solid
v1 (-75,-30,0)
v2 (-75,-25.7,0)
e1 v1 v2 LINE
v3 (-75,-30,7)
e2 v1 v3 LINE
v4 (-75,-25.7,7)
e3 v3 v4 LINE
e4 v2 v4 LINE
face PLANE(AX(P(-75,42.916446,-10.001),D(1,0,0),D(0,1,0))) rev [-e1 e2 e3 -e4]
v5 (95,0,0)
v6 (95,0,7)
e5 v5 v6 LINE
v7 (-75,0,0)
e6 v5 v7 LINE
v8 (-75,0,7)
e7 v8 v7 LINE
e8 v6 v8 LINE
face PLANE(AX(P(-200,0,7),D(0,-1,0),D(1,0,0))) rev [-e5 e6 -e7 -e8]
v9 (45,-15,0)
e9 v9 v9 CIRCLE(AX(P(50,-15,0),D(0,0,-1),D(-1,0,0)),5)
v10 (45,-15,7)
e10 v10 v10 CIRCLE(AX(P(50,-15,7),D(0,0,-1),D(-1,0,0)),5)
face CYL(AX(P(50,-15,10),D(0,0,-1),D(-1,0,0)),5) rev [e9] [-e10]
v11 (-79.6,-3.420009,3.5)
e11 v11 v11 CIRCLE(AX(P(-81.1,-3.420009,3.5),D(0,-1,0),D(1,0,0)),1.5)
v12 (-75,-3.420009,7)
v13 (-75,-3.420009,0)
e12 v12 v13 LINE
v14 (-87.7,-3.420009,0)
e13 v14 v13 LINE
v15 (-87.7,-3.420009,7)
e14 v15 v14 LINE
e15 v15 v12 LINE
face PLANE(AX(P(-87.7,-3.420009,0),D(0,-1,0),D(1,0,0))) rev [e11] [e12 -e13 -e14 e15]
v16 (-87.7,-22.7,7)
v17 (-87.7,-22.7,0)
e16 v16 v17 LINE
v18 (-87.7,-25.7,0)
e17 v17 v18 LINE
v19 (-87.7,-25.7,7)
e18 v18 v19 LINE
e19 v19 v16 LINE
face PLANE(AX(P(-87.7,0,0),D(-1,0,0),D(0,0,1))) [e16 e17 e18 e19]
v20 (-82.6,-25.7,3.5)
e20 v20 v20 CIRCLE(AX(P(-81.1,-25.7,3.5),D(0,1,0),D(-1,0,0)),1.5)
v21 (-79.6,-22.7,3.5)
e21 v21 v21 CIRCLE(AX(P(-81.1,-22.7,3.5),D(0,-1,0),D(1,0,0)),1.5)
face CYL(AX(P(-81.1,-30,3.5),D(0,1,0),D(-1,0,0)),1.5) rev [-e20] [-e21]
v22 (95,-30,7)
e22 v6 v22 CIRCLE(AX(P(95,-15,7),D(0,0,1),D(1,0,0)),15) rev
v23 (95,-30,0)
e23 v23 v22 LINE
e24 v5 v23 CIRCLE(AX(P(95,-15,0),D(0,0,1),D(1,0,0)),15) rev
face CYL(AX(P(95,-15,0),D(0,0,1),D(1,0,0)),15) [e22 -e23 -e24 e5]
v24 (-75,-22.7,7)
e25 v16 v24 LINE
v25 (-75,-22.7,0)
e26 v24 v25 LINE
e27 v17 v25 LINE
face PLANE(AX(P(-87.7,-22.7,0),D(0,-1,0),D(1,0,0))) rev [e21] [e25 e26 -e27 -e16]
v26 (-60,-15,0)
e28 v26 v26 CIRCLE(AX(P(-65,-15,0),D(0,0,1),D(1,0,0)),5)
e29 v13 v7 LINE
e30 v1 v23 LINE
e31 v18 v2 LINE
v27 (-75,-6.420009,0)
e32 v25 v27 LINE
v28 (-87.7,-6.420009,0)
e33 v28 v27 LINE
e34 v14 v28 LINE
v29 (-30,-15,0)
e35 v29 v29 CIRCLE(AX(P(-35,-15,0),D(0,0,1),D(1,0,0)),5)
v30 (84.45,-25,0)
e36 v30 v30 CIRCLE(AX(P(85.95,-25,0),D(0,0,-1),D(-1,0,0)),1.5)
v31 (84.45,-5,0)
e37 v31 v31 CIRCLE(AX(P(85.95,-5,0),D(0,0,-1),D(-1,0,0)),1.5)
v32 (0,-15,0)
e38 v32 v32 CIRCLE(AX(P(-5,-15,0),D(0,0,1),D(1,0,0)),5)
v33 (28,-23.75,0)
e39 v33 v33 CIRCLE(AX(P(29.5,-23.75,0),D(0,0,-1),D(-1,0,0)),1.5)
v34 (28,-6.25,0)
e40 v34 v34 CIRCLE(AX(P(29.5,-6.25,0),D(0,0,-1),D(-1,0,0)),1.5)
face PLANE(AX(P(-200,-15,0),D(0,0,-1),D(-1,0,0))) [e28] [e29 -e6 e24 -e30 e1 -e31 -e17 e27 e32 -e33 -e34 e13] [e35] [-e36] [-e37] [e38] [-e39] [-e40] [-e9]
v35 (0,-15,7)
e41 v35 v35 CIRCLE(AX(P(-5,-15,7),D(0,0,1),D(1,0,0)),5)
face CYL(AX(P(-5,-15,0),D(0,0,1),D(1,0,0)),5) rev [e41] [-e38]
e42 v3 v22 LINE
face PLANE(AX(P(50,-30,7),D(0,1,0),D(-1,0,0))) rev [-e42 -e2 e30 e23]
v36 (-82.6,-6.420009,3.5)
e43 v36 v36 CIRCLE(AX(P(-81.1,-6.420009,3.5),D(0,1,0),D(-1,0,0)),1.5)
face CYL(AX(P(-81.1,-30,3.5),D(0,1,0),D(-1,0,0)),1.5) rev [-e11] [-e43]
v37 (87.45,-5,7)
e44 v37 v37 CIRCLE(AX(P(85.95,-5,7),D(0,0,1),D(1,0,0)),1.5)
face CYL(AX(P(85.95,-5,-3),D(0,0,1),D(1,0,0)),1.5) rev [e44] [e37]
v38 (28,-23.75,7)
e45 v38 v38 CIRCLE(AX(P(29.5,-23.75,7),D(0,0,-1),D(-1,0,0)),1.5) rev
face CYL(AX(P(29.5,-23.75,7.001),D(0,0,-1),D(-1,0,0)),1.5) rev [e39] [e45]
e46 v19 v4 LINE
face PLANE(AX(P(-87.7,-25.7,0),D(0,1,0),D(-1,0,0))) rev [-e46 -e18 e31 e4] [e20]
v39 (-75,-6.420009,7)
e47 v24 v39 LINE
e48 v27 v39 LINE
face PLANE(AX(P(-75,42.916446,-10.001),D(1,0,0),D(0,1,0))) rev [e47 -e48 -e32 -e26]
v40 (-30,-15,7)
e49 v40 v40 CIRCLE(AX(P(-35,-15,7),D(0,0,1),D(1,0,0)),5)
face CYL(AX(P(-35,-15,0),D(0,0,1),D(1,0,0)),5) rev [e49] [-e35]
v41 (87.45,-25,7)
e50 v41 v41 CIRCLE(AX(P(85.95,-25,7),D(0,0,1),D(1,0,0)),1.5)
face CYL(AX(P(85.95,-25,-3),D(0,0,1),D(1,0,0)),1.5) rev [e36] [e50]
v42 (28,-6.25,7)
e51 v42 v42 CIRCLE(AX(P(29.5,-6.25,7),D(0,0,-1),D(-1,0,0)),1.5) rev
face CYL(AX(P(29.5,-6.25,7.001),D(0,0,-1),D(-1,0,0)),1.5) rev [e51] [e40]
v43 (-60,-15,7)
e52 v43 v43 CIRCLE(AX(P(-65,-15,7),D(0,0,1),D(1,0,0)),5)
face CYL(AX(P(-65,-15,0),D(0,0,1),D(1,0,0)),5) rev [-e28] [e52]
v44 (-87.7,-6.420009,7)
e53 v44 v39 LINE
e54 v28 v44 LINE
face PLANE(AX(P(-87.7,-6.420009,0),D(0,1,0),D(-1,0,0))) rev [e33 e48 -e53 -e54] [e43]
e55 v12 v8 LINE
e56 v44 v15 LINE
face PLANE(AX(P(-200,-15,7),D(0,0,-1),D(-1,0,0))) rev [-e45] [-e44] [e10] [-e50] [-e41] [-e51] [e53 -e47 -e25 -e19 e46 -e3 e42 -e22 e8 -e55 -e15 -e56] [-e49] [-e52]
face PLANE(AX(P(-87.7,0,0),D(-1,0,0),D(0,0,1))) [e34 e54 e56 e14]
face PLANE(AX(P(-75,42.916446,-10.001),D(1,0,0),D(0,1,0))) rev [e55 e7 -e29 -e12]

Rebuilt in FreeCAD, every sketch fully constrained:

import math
import FreeCAD as App
import Part
import Sketcher
from FreeCAD import Vector
Q = App.Units.Quantity


def add_polygon(sketch, points):
    """Adds a closed chain of lines whose ends are joined by coincident constraints."""
    first, n = sketch.GeometryCount, len(points)
    for a, b in zip(points, points[1:] + points[:1]):
        sketch.addGeometry(Part.LineSegment(App.Vector(*a, 0), App.Vector(*b, 0)), False)
    for i in range(n):
        sketch.addConstraint(Sketcher.Constraint("Coincident", first + i, 2, first + (i + 1) % n, 1))

doc = App.newDocument("Part")
body = doc.addObject("PartDesign::Body", "Body")

# Sketch on XY plane
sketch1 = doc.addObject("Sketcher::SketchObject", "Sketch")
body.addObject(sketch1)
sketch1.AttachmentSupport = (doc.XY_Plane, [""])
sketch1.MapMode = "FlatFace"
sketch1.addGeometry([
    Part.LineSegment(Vector(50, 0, 0), Vector(-200, 0, 0)),
    Part.ArcOfCircle(Part.Circle(Vector(-200, -15, 0), Vector(0, 0, 1), 15), math.radians(90), math.radians(270)),
    Part.LineSegment(Vector(-200, -30, 0), Vector(50, -30, 0)),
    Part.ArcOfCircle(Part.Circle(Vector(50, -15, 0), Vector(0, 0, 1), 15), math.radians(-90), math.radians(90)),
], False)
sketch1.addConstraint([
    Sketcher.Constraint("Tangent", 0, 2, 1, 1),
    Sketcher.Constraint("Tangent", 1, 2, 2, 1),
    Sketcher.Constraint("Tangent", 2, 2, 3, 1),
    Sketcher.Constraint("Tangent", 3, 2, 0, 1),
    Sketcher.Constraint("Horizontal", 0),
    Sketcher.Constraint("Horizontal", 2),
    Sketcher.Constraint("PointOnObject", 0, 2, -1),
    Sketcher.Constraint("Radius", 1, Q("15 mm")),
    Sketcher.Constraint("DistanceX", 0, 2, 0, 1, Q("250 mm")),
    Sketcher.Constraint("DistanceX", 1, 3, -1, 1, Q("200 mm")),
])
pad1 = doc.addObject("PartDesign::Pad", "Pad")
body.addObject(pad1)
pad1.Profile = sketch1
pad1.Length = 7

# Sketch on XY plane
sketch2 = doc.addObject("Sketcher::SketchObject", "Sketch001")
body.addObject(sketch2)
sketch2.AttachmentSupport = (doc.XY_Plane, [""])
sketch2.MapMode = "FlatFace"
sketch2.AttachmentOffset = App.Placement(Vector(0, 0, 7), App.Rotation())
sketch2.addGeometry(Part.Circle(Vector(-185, -15, 0), Vector(0, 0, 1), 5), False)
sketch2.addConstraint([
    Sketcher.Constraint("Diameter", 0, Q("10 mm")),
    Sketcher.Constraint("DistanceX", 0, 3, -1, 1, Q("185 mm")),
    Sketcher.Constraint("DistanceY", 0, 3, -1, 1, Q("15 mm")),
])
pocket1 = doc.addObject("PartDesign::Pocket", "Pocket")
body.addObject(pocket1)
pocket1.Profile = sketch2
pocket1.Length = 7
doc.recompute()

linearpattern = doc.addObject("PartDesign::LinearPattern", "LinearPattern")
body.addObject(linearpattern)
linearpattern.Originals = [pocket1]
linearpattern.Direction = (doc.X_Axis, [""])
linearpattern.Mode = "offset"
linearpattern.Offset = 30
linearpattern.Occurrences = 7
body.Tip = linearpattern

# Sketch on XY plane
sketch3 = doc.addObject("Sketcher::SketchObject", "Sketch002")
body.addObject(sketch3)
sketch3.AttachmentSupport = (doc.XY_Plane, [""])
sketch3.MapMode = "FlatFace"
sketch3.addGeometry(Part.Circle(Vector(50, -15, 0), Vector(0, 0, 1), 5), False)
sketch3.addConstraint([
    Sketcher.Constraint("Diameter", 0, Q("10 mm")),
    Sketcher.Constraint("DistanceX", -1, 1, 0, 3, Q("50 mm")),
    Sketcher.Constraint("DistanceY", 0, 3, -1, 1, Q("15 mm")),
])
pocket2 = doc.addObject("PartDesign::Pocket", "Pocket001")
body.addObject(pocket2)
pocket2.Profile = sketch3
pocket2.Length = 10
pocket2.Reversed = True

# Sketch on XY plane
sketch4 = doc.addObject("Sketcher::SketchObject", "Sketch003")
body.addObject(sketch4)
sketch4.AttachmentSupport = (doc.XY_Plane, [""])
sketch4.MapMode = "FlatFace"
sketch4.addGeometry(Part.Circle(Vector(29.5, -6.2, 0), Vector(0, 0, 1), 1.5), False)
sketch4.addConstraint([
    Sketcher.Constraint("Diameter", 0, Q("3 mm")),
    Sketcher.Constraint("DistanceX", -1, 1, 0, 3, Q("29.5 mm")),
    Sketcher.Constraint("DistanceY", 0, 3, -1, 1, Q("6.25 mm")),
])
pocket3 = doc.addObject("PartDesign::Pocket", "Pocket002")
body.addObject(pocket3)
pocket3.Profile = sketch4
pocket3.Type = "UpToFirst"
pocket3.Reversed = True

# Sketch on XY plane
sketch5 = doc.addObject("Sketcher::SketchObject", "Sketch004")
body.addObject(sketch5)
sketch5.AttachmentSupport = (doc.XY_Plane, [""])
sketch5.MapMode = "FlatFace"
sketch5.addGeometry(Part.Circle(Vector(29.5, -23.8, 0), Vector(0, 0, 1), 1.5), False)
sketch5.addConstraint([
    Sketcher.Constraint("Diameter", 0, Q("3 mm")),
    Sketcher.Constraint("DistanceX", -1, 1, 0, 3, Q("29.5 mm")),
    Sketcher.Constraint("DistanceY", 0, 3, -1, 1, Q("23.75 mm")),
])
pocket4 = doc.addObject("PartDesign::Pocket", "Pocket003")
body.addObject(pocket4)
pocket4.Profile = sketch5
pocket4.Type = "UpToFirst"
pocket4.Reversed = True

# Sketch on XY plane
sketch6 = doc.addObject("Sketcher::SketchObject", "Sketch005")
body.addObject(sketch6)
sketch6.AttachmentSupport = (doc.XY_Plane, [""])
sketch6.MapMode = "FlatFace"
add_polygon(sketch6, [(-133, -11.8), (-133, -51.7), (-180, -51.7), (-180, -11.8)])  # lines 0-3
sketch6.addGeometry(Part.ArcOfCircle(Part.Circle(Vector(-152.5, -46.9, 0), Vector(0, 0, 1), 1.7), math.radians(-90), math.radians(90)), False)  # 4
sketch6.addGeometry(Part.LineSegment(Vector(-152.5, -45.2, 0), Vector(-161.1, -45.2, 0)), False)  # 5
sketch6.addGeometry(Part.ArcOfCircle(Part.Circle(Vector(-161.1, -46.9, 0), Vector(0, 0, 1), 1.7), math.radians(90), math.radians(270)), False)  # 6
sketch6.addGeometry(Part.LineSegment(Vector(-161.1, -48.7, 0), Vector(-152.5, -48.7, 0)), False)  # 7
sketch6.addGeometry(Part.Circle(Vector(-143.6, -39.2, 0), Vector(0, 0, 1), 8.2), False)  # 8
sketch6.addGeometry(Part.Circle(Vector(-169.8, -39.2, 0), Vector(0, 0, 1), 8.2), False)  # 9
sketch6.addConstraint([
    Sketcher.Constraint("Tangent", 4, 2, 5, 1),
    Sketcher.Constraint("Tangent", 5, 2, 6, 1),
    Sketcher.Constraint("Tangent", 6, 2, 7, 1),
    Sketcher.Constraint("Tangent", 7, 2, 4, 1),
    Sketcher.Constraint("Vertical", 0),
    Sketcher.Constraint("Horizontal", 1),
    Sketcher.Constraint("Vertical", 2),
    Sketcher.Constraint("Horizontal", 3),
    Sketcher.Constraint("Horizontal", 5),
    Sketcher.Constraint("Horizontal", 7),
    Sketcher.Constraint("Equal", 8, 9),
    Sketcher.Constraint("Horizontal", 8, 3, 9, 3),
    Sketcher.Constraint("Diameter", 8, Q("16.4 mm")),
    Sketcher.Constraint("DistanceX", 1, 2, 1, 1, Q("47 mm")),
    Sketcher.Constraint("DistanceX", 0, 2, -1, 1, Q("133 mm")),
    Sketcher.Constraint("Radius", 4, Q("1.742323 mm")),
    Sketcher.Constraint("DistanceX", 5, 2, 5, 1, Q("8.604443 mm")),
    Sketcher.Constraint("DistanceY", 0, 2, 0, 1, Q("39.930417 mm")),
    Sketcher.Constraint("DistanceY", 4, 3, -1, 1, Q("46.91756 mm")),
    Sketcher.Constraint("DistanceX", 4, 3, 8, 3, Q("8.897778 mm")),
    Sketcher.Constraint("DistanceX", 9, 3, 6, 3, Q("8.658339 mm")),
    Sketcher.Constraint("DistanceY", 9, 3, 2, 2, Q("27.482569 mm")),
    Sketcher.Constraint("DistanceY", 4, 2, 8, 3, Q("5.931792 mm")),
    Sketcher.Constraint("DistanceX", 4, 3, -1, 1, Q("152.543612 mm")),
])
pad2 = doc.addObject("PartDesign::Pad", "Pad001")
body.addObject(pad2)
pad2.Profile = sketch6
pad2.Length = 10
pad2.Reversed = True

# Sketch on XY plane
sketch7 = doc.addObject("Sketcher::SketchObject", "Sketch006")
body.addObject(sketch7)
sketch7.AttachmentSupport = (doc.XY_Plane, [""])
sketch7.MapMode = "FlatFace"
sketch7.AttachmentOffset = App.Placement(Vector(0, 0, -10), App.Rotation())
add_polygon(sketch7, [(-134, -21), (-134, -51), (-180, -51), (-180, -21), (-164, -21), (-164, -12), (-150, -12), (-150, -21)])  # lines 0-7
sketch7.addConstraint([
    Sketcher.Constraint("Vertical", 0),
    Sketcher.Constraint("Horizontal", 1),
    Sketcher.Constraint("Vertical", 2),
    Sketcher.Constraint("Horizontal", 3),
    Sketcher.Constraint("Vertical", 4),
    Sketcher.Constraint("Horizontal", 5),
    Sketcher.Constraint("Vertical", 6),
    Sketcher.Constraint("Horizontal", 7),
    Sketcher.Constraint("Horizontal", 3, 2, 6, 2),
    Sketcher.Constraint("DistanceX", 0, 2, -1, 1, Q("133.75 mm")),
    Sketcher.Constraint("DistanceX", 1, 2, 1, 1, Q("45.83376 mm")),
    Sketcher.Constraint("DistanceY", 0, 2, -1, 1, Q("51.025899 mm")),
    Sketcher.Constraint("DistanceX", 3, 1, 3, 2, Q("15.875605 mm")),
    Sketcher.Constraint("DistanceX", 5, 1, 5, 2, Q("13.763298 mm")),
    Sketcher.Constraint("DistanceY", 0, 2, 0, 1, Q("30.125125 mm")),
    Sketcher.Constraint("DistanceY", 4, 1, 4, 2, Q("9.139898 mm")),
])
pocket5 = doc.addObject("PartDesign::Pocket", "Pocket004")
body.addObject(pocket5)
pocket5.Profile = sketch7
pocket5.Length = 9
pocket5.Reversed = True

# Sketch on XY plane
sketch8 = doc.addObject("Sketcher::SketchObject", "Sketch007")
body.addObject(sketch8)
sketch8.AttachmentSupport = (doc.XY_Plane, [""])
sketch8.MapMode = "FlatFace"
sketch8.AttachmentOffset = App.Placement(Vector(0, 0, 7), App.Rotation())
add_polygon(sketch8, [(-215, 43), (-215, -73), (-75, -73), (-75, 43)])  # lines 0-3
sketch8.addConstraint([
    Sketcher.Constraint("Vertical", 0),
    Sketcher.Constraint("Horizontal", 1),
    Sketcher.Constraint("Vertical", 2),
    Sketcher.Constraint("Horizontal", 3),
    Sketcher.Constraint("DistanceX", 1, 1, 1, 2, Q("140 mm")),
    Sketcher.Constraint("DistanceX", 0, 2, -1, 1, Q("215 mm")),
    Sketcher.Constraint("DistanceY", 0, 2, 0, 1, Q("115.832892 mm")),
    Sketcher.Constraint("DistanceY", 0, 2, -1, 1, Q("72.916446 mm")),
])
pocket6 = doc.addObject("PartDesign::Pocket", "Pocket005")
body.addObject(pocket6)
pocket6.Profile = sketch8
pocket6.Type = "UpToFirst"

# Sketch on XY plane
sketch9 = doc.addObject("Sketcher::SketchObject", "Sketch008")
body.addObject(sketch9)
sketch9.AttachmentSupport = (doc.XY_Plane, [""])
sketch9.MapMode = "FlatFace"
sketch9.addGeometry([
    Part.LineSegment(Vector(95, 0, 0), Vector(50, 0, 0)),
    Part.ArcOfCircle(Part.Circle(Vector(50, -15, 0), Vector(0, 0, 1), 15), math.radians(-90), math.radians(90)),
    Part.LineSegment(Vector(50, -30, 0), Vector(95, -30, 0)),
    Part.ArcOfCircle(Part.Circle(Vector(95, -15, 0), Vector(0, 0, 1), 15), math.radians(-90), math.radians(90)),
], False)
sketch9.addConstraint([
    Sketcher.Constraint("Tangent", 0, 2, 1, 2),
    Sketcher.Constraint("Tangent", 1, 1, 2, 1),
    Sketcher.Constraint("Tangent", 2, 2, 3, 1),
    Sketcher.Constraint("Tangent", 3, 2, 0, 1),
    Sketcher.Constraint("Horizontal", 0),
    Sketcher.Constraint("Horizontal", 2),
    Sketcher.Constraint("PointOnObject", 0, 2, -1),
    Sketcher.Constraint("Radius", 1, Q("15 mm")),
    Sketcher.Constraint("DistanceX", 0, 2, 0, 1, Q("45 mm")),
    Sketcher.Constraint("DistanceX", -1, 1, 1, 3, Q("50 mm")),
])
pad3 = doc.addObject("PartDesign::Pad", "Pad002")
body.addObject(pad3)
pad3.Profile = sketch9
pad3.Length = 7

# Sketch on XY plane
sketch10 = doc.addObject("Sketcher::SketchObject", "Sketch009")
body.addObject(sketch10)
sketch10.AttachmentSupport = (doc.XY_Plane, [""])
sketch10.MapMode = "FlatFace"
sketch10.AttachmentOffset = App.Placement(Vector(0, 0, 7), App.Rotation())
sketch10.addGeometry([
    Part.ArcOfCircle(Part.Circle(Vector(86, -25, 0), Vector(0, 0, 1), 1.5), math.radians(0), math.radians(90)),  # 0
    Part.ArcOfCircle(Part.Circle(Vector(86, -25, 0), Vector(0, 0, 1), 1.5), math.radians(90), math.radians(270)),  # 1
    Part.ArcOfCircle(Part.Circle(Vector(86, -25, 0), Vector(0, 0, 1), 1.5), math.radians(-90), math.radians(0)),  # 2
    Part.ArcOfCircle(Part.Circle(Vector(86, -5, 0), Vector(0, 0, 1), 1.5), math.radians(0), math.radians(90)),  # 3
    Part.ArcOfCircle(Part.Circle(Vector(86, -5, 0), Vector(0, 0, 1), 1.5), math.radians(90), math.radians(270)),  # 4
    Part.ArcOfCircle(Part.Circle(Vector(86, -5, 0), Vector(0, 0, 1), 1.5), math.radians(-90), math.radians(0)),  # 5
], False)
sketch10.addConstraint([
    Sketcher.Constraint("Tangent", 0, 2, 1, 1),
    Sketcher.Constraint("Tangent", 1, 2, 2, 1),
    Sketcher.Constraint("Tangent", 2, 2, 0, 1),
    Sketcher.Constraint("Tangent", 3, 2, 4, 1),
    Sketcher.Constraint("Tangent", 4, 2, 5, 1),
    Sketcher.Constraint("Tangent", 5, 2, 3, 1),
    Sketcher.Constraint("Equal", 2, 3),
    Sketcher.Constraint("Horizontal", 1, 3, 2, 2),
    Sketcher.Constraint("Horizontal", 4, 3, 5, 2),
    Sketcher.Constraint("Vertical", 2, 3, 3, 3),
    Sketcher.Constraint("Vertical", 5, 3, 0, 2),
    Sketcher.Constraint("Vertical", 0, 2, 1, 2),
    Sketcher.Constraint("Vertical", 1, 2, 3, 2),
    Sketcher.Constraint("Vertical", 3, 2, 4, 2),
    Sketcher.Constraint("Radius", 0, Q("1.5 mm")),
    Sketcher.Constraint("DistanceY", 0, 3, -1, 1, Q("25 mm")),
    Sketcher.Constraint("DistanceY", 3, 3, -1, 1, Q("5 mm")),
    Sketcher.Constraint("DistanceX", -1, 1, 0, 3, Q("85.95 mm")),
])
pocket7 = doc.addObject("PartDesign::Pocket", "Pocket006")
body.addObject(pocket7)
pocket7.Profile = sketch10
pocket7.Length = 10

# Sketch on YZ plane
sketch11 = doc.addObject("Sketcher::SketchObject", "Sketch010")
body.addObject(sketch11)
sketch11.AttachmentSupport = (doc.YZ_Plane, [""])
sketch11.MapMode = "FlatFace"
sketch11.AttachmentOffset = App.Placement(Vector(0, 0, -75), App.Rotation())
add_polygon(sketch11, [(-3.4, 0), (-6.4, 0), (-6.4, 7), (-3.4, 7)])  # lines 0-3
add_polygon(sketch11, [(-22.7, 0), (-25.7, 0), (-25.7, 7), (-22.7, 7)])  # lines 4-7
sketch11.addConstraint([
    Sketcher.Constraint("Horizontal", 0),
    Sketcher.Constraint("Vertical", 1),
    Sketcher.Constraint("Horizontal", 2),
    Sketcher.Constraint("Vertical", 3),
    Sketcher.Constraint("Horizontal", 4),
    Sketcher.Constraint("Vertical", 5),
    Sketcher.Constraint("Horizontal", 6),
    Sketcher.Constraint("Vertical", 7),
    Sketcher.Constraint("PointOnObject", 0, 2, -1),
    Sketcher.Constraint("PointOnObject", 4, 2, -1),
    Sketcher.Constraint("Horizontal", 2, 2, 5, 2),
    Sketcher.Constraint("Equal", 2, 4),
    Sketcher.Constraint("DistanceX", 0, 2, 0, 1, Q("3 mm")),
    Sketcher.Constraint("DistanceY", 1, 1, 1, 2, Q("7 mm")),
    Sketcher.Constraint("DistanceX", 4, 2, -1, 1, Q("25.7 mm")),
    Sketcher.Constraint("DistanceX", 0, 2, -1, 1, Q("6.420009 mm")),
])
pad4 = doc.addObject("PartDesign::Pad", "Pad003")
body.addObject(pad4)
pad4.Profile = sketch11
pad4.Length = 12.7
pad4.Reversed = True

# Sketch on XZ plane
sketch12 = doc.addObject("Sketcher::SketchObject", "Sketch011")
body.addObject(sketch12)
sketch12.AttachmentSupport = (doc.XZ_Plane, [""])
sketch12.MapMode = "FlatFace"
sketch12.AttachmentOffset = App.Placement(Vector(0, 0, 3.420009), App.Rotation())
sketch12.addGeometry(Part.Circle(Vector(-81.1, 3.5, 0), Vector(0, 0, 1), 1.5), False)
sketch12.addConstraint([
    Sketcher.Constraint("Diameter", 0, Q("3 mm")),
    Sketcher.Constraint("DistanceX", 0, 3, -1, 1, Q("81.1 mm")),
    Sketcher.Constraint("DistanceY", -1, 1, 0, 3, Q("3.5 mm")),
])
pocket8 = doc.addObject("PartDesign::Pocket", "Pocket007")
body.addObject(pocket8)
pocket8.Profile = sketch12
pocket8.Type = "ThroughAll"
pocket8.Midplane = True

doc.recompute()
